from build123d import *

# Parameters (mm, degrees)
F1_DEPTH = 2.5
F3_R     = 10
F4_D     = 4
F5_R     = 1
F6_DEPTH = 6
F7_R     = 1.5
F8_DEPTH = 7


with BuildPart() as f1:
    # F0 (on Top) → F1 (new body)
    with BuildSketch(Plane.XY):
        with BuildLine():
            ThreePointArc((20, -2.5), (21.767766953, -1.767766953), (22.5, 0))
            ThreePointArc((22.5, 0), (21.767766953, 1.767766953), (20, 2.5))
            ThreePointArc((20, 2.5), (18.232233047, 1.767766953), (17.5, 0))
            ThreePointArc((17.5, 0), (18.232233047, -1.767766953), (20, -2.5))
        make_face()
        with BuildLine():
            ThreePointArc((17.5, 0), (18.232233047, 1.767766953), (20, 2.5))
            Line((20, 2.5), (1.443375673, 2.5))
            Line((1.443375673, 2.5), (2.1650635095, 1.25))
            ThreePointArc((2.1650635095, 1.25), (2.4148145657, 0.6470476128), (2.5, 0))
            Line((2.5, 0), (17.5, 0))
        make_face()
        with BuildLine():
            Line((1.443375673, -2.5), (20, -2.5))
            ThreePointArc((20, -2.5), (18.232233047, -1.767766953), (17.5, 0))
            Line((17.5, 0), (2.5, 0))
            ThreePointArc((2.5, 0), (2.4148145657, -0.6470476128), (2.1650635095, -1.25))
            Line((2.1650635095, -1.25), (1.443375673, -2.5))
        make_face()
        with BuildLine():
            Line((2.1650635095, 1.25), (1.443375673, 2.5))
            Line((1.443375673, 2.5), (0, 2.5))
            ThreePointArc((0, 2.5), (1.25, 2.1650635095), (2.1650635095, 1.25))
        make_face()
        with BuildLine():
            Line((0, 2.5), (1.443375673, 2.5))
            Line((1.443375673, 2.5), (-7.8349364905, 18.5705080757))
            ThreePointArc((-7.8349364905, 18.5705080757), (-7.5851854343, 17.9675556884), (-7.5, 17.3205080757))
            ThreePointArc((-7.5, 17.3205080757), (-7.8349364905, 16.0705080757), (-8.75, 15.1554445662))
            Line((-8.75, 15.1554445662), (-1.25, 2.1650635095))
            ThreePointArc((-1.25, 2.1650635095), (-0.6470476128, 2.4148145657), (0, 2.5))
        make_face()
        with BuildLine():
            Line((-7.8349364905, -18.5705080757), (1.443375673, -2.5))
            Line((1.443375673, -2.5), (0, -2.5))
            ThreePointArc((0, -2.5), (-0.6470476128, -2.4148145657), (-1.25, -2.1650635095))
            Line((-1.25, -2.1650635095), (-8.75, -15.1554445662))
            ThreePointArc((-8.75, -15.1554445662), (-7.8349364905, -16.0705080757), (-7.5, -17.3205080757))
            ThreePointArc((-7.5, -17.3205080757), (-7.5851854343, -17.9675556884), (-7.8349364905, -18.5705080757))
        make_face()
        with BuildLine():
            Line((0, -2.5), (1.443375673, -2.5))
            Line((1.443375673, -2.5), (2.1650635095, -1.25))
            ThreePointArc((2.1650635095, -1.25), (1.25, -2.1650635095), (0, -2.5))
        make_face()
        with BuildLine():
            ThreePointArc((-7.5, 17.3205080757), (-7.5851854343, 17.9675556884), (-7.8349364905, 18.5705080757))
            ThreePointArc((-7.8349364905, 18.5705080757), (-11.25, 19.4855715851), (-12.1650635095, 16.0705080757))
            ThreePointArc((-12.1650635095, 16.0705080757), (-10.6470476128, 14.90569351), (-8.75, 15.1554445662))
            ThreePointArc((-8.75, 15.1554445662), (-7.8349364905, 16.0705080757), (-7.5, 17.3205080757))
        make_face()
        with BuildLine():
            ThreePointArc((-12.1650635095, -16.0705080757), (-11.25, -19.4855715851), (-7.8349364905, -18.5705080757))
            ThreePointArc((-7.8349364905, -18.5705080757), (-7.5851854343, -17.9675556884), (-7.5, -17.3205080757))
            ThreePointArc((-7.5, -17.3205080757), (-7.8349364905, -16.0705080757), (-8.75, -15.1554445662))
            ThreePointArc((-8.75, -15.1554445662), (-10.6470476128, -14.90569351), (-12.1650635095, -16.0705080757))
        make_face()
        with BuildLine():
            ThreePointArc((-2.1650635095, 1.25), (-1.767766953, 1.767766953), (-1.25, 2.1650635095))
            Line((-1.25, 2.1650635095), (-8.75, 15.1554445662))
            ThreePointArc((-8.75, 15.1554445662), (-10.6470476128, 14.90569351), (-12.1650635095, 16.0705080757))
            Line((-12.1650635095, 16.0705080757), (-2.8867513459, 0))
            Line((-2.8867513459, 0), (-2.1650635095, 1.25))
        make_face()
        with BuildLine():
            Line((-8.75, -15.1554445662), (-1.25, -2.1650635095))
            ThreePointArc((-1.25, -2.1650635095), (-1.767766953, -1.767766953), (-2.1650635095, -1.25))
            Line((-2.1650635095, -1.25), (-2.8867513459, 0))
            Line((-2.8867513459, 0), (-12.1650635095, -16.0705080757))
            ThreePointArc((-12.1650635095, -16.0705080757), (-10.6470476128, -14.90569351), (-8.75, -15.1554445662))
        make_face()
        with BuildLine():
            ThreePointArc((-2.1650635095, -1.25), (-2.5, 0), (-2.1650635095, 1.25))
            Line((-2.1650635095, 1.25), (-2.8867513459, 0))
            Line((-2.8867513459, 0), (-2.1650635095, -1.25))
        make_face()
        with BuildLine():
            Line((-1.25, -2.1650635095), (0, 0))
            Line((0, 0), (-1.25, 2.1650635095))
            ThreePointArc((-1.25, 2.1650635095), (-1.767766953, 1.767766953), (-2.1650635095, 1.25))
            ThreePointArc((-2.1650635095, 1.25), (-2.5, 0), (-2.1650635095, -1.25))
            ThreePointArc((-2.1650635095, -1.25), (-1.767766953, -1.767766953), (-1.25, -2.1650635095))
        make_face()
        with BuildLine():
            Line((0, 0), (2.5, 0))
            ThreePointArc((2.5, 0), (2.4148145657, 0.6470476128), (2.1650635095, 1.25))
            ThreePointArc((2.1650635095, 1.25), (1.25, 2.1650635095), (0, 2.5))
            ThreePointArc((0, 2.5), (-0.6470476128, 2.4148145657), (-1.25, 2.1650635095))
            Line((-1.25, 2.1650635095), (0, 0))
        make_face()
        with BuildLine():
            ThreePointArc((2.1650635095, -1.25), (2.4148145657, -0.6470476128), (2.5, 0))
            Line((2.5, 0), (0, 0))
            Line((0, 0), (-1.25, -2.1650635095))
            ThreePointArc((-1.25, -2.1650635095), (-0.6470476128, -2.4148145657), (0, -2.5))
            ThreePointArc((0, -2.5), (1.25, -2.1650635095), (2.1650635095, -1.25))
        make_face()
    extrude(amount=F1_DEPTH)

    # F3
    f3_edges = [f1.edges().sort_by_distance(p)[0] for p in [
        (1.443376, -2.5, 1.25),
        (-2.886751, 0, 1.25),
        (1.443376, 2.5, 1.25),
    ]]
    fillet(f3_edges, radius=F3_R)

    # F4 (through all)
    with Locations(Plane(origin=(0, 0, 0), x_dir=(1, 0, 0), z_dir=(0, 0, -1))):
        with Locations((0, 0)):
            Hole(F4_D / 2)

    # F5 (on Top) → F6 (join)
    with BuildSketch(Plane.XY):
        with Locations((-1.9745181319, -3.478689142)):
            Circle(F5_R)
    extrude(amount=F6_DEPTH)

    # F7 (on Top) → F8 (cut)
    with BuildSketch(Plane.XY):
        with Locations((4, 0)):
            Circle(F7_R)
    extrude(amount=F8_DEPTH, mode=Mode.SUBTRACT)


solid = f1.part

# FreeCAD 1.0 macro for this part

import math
import FreeCAD as App
import Part
import Sketcher
from FreeCAD import Vector
Q = App.Units.Quantity


def edges_at(feature, points):
    """Names of the edges that pass closest to the given points."""
    edges = feature.Shape.Edges
    near = lambda p: min(range(len(edges)), key=lambda i: edges[i].distToShape(Part.Vertex(*p))[0])
    return sorted({f"Edge{near(p) + 1}" for p in points})

doc = App.newDocument("Part")
body = doc.addObject("PartDesign::Body", "Body")

sketch1 = body.newObject("Sketcher::SketchObject", "Sketch")
sketch1.AttachmentSupport = (doc.getObject("XY_Plane"), [""])
sketch1.MapMode = "FlatFace"
sketch1.addGeometry(Part.LineSegment(Vector(-12.2, 16.1, 0), Vector(-2.9, 0, 0)), False)
sketch1.addGeometry(Part.LineSegment(Vector(-2.9, 0, 0), Vector(-12.2, -16.1, 0)), False)
sketch1.addGeometry(Part.ArcOfCircle(Part.Circle(Vector(-10, -17.3, 0), Vector(0, 0, 1), 2.5), math.radians(150), math.radians(330)), False)
sketch1.addGeometry(Part.LineSegment(Vector(-7.8, -18.6, 0), Vector(1.4, -2.5, 0)), False)
sketch1.addGeometry(Part.LineSegment(Vector(1.4, -2.5, 0), Vector(20, -2.5, 0)), False)
sketch1.addGeometry(Part.ArcOfCircle(Part.Circle(Vector(20, 0, 0), Vector(0, 0, 1), 2.5), math.radians(-90), math.radians(0)), False)
sketch1.addGeometry(Part.ArcOfCircle(Part.Circle(Vector(20, 0, 0), Vector(0, 0, 1), 2.5), math.radians(0), math.radians(90)), False)
sketch1.addGeometry(Part.LineSegment(Vector(20, 2.5, 0), Vector(1.4, 2.5, 0)), False)
sketch1.addGeometry(Part.LineSegment(Vector(1.4, 2.5, 0), Vector(-7.8, 18.6, 0)), False)
sketch1.addGeometry(Part.ArcOfCircle(Part.Circle(Vector(-10, 17.3, 0), Vector(0, 0, 1), 2.5), math.radians(30), math.radians(210)), False)
sketch1.addConstraint(Sketcher.Constraint("Coincident", 0, 2, 1, 1))
sketch1.addConstraint(Sketcher.Constraint("Tangent", 1, 2, 2, 1))
sketch1.addConstraint(Sketcher.Constraint("Tangent", 2, 2, 3, 1))
sketch1.addConstraint(Sketcher.Constraint("Coincident", 3, 2, 4, 1))
sketch1.addConstraint(Sketcher.Constraint("Tangent", 4, 2, 5, 1))
sketch1.addConstraint(Sketcher.Constraint("Tangent", 5, 2, 6, 1))
sketch1.addConstraint(Sketcher.Constraint("Tangent", 6, 2, 7, 1))
sketch1.addConstraint(Sketcher.Constraint("Coincident", 7, 2, 8, 1))
sketch1.addConstraint(Sketcher.Constraint("Tangent", 8, 2, 9, 1))
sketch1.addConstraint(Sketcher.Constraint("Tangent", 9, 2, 0, 1))
sketch1.addConstraint(Sketcher.Constraint("Horizontal", 4))
sketch1.addConstraint(Sketcher.Constraint("Horizontal", 7))
sketch1.addConstraint(Sketcher.Constraint("Equal", 2, 5))
sketch1.addConstraint(Sketcher.Constraint("Equal", 5, 6))
sketch1.addConstraint(Sketcher.Constraint("Equal", 6, 9))
sketch1.addConstraint(Sketcher.Constraint("Symmetric", 2, 3, 9, 3, -1))
sketch1.addConstraint(Sketcher.Constraint("Symmetric", 3, 2, 7, 2, -1))
sketch1.addConstraint(Sketcher.Constraint("PointOnObject", 0, 2, -1))
sketch1.addConstraint(Sketcher.Constraint("PointOnObject", 5, 2, -1))
sketch1.addConstraint(Sketcher.Constraint("Parallel", 1, 3))
sketch1.addConstraint(Sketcher.Constraint("Equal", 1, 3))
sketch1.addConstraint(Sketcher.Constraint("Radius", 2, Q("2.5 mm")))
sketch1.addConstraint(Sketcher.Constraint("DistanceX", 2, 3, -1, 1, Q("10 mm")))
sketch1.addConstraint(Sketcher.Constraint("DistanceX", -1, 1, 5, 3, Q("20 mm")))
sketch1.addConstraint(Sketcher.Constraint("DistanceX", 4, 1, 4, 2, Q("18.556624 mm")))
pad1 = body.newObject("PartDesign::Pad", "Pad")
pad1.Profile = sketch1
pad1.Length = 2.5
doc.recompute()

fillet = body.newObject("PartDesign::Fillet", "Fillet")
fillet.Base = (pad1, edges_at(pad1, [(1.443, -2.5, 1.25), (-2.887, 0, 1.25), (1.443, 2.5, 1.25)]))
fillet.Radius = 10

sketch2 = body.newObject("Sketcher::SketchObject", "Sketch001")
sketch2.AttachmentSupport = (doc.getObject("XY_Plane"), [""])
sketch2.MapMode = "FlatFace"
sketch2.addGeometry(Part.Circle(Vector(0, 0, 0), Vector(0, 0, 1), 2), False)
sketch2.addConstraint(Sketcher.Constraint("Coincident", 0, 3, -1, 1))
sketch2.addConstraint(Sketcher.Constraint("Diameter", 0, Q("4 mm")))
doc.recompute()
hole = body.newObject("PartDesign::Hole", "Hole")
hole.Profile = sketch2
hole.ThreadType = "None"
hole.Diameter = 4
hole.DepthType = "ThroughAll"
hole.Reversed = True

sketch3 = body.newObject("Sketcher::SketchObject", "Sketch002")
sketch3.AttachmentSupport = (doc.getObject("XY_Plane"), [""])
sketch3.MapMode = "FlatFace"
sketch3.addGeometry(Part.Circle(Vector(-2, -3.5, 0), Vector(0, 0, 1), 1), False)
sketch3.addConstraint(Sketcher.Constraint("Diameter", 0, Q("2 mm")))
sketch3.addConstraint(Sketcher.Constraint("DistanceX", 0, 3, -1, 1, Q("1.974518 mm")))
sketch3.addConstraint(Sketcher.Constraint("DistanceY", 0, 3, -1, 1, Q("3.478689 mm")))
pad2 = body.newObject("PartDesign::Pad", "Pad001")
pad2.Profile = sketch3
pad2.Length = 6

sketch4 = body.newObject("Sketcher::SketchObject", "Sketch003")
sketch4.AttachmentSupport = (doc.getObject("XY_Plane"), [""])
sketch4.MapMode = "FlatFace"
sketch4.addGeometry(Part.Circle(Vector(4, 0, 0), Vector(0, 0, 1), 1.5), False)
sketch4.addConstraint(Sketcher.Constraint("PointOnObject", 0, 3, -1))
sketch4.addConstraint(Sketcher.Constraint("Diameter", 0, Q("3 mm")))
sketch4.addConstraint(Sketcher.Constraint("DistanceX", -1, 1, 0, 3, Q("4 mm")))
pocket1 = body.newObject("PartDesign::Pocket", "Pocket")
pocket1.Profile = sketch4
pocket1.Length = 7
pocket1.Reversed = True

doc.recompute()
